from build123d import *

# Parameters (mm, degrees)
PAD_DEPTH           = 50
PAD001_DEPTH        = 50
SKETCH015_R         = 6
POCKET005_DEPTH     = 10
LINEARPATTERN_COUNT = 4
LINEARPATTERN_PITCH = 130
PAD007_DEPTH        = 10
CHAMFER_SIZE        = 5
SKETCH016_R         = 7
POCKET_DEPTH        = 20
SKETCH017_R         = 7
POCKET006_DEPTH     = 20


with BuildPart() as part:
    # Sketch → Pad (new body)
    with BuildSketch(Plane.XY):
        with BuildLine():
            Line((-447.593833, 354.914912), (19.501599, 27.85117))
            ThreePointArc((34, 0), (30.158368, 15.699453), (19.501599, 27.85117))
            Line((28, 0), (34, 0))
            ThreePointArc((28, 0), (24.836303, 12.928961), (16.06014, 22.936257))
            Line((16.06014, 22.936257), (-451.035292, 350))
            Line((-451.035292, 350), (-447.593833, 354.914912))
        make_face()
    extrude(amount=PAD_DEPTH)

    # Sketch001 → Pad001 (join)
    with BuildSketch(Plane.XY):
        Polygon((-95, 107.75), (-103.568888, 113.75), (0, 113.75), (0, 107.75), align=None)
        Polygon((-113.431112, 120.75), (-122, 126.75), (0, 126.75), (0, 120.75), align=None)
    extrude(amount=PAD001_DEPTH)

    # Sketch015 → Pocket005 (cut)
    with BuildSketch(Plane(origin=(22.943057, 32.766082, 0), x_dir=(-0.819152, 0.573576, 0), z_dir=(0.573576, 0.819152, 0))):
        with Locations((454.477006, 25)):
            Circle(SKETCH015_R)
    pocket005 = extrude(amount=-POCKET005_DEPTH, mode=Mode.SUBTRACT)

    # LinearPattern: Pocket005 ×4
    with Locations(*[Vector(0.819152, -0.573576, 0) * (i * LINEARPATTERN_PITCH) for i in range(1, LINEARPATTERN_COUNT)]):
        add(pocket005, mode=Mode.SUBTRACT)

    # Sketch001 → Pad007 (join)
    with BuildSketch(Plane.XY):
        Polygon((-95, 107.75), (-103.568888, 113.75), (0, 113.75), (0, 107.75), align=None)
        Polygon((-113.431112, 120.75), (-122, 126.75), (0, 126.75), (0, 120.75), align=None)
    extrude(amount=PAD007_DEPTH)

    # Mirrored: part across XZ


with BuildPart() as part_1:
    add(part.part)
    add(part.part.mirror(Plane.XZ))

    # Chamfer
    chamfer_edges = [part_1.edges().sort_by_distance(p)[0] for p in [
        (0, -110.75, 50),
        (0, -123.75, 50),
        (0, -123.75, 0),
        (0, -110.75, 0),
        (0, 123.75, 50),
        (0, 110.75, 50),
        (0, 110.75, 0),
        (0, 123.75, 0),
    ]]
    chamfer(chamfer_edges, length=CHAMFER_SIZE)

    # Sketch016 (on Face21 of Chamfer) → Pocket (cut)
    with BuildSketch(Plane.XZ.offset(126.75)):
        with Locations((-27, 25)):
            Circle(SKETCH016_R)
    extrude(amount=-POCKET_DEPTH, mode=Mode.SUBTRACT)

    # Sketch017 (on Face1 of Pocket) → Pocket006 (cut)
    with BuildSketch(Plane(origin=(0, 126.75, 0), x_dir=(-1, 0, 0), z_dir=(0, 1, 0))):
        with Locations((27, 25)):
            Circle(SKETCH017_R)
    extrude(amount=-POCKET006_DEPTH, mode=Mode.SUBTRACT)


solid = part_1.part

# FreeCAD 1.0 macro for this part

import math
import FreeCAD as App
import Part
import Sketcher
Q = App.Units.Quantity


def edges_at(feature, points):
    """Names of the edges that pass closest to the given points."""
    edges = feature.Shape.Edges
    near = lambda p: min(range(len(edges)), key=lambda i: edges[i].distToShape(Part.Vertex(*p))[0])
    return sorted({f"Edge{near(p) + 1}" for p in points})

doc = App.newDocument("Part")
body = doc.addObject("PartDesign::Body", "Body")

# Sketch on XY plane
sketch1 = body.newObject("Sketcher::SketchObject", "Sketch")
sketch1.AttachmentSupport = (doc.getObject("XY_Plane"), [""])
sketch1.MapMode = "FlatFace"
sketch1.addGeometry([
    Part.LineSegment(App.Vector(20, 28, 0), App.Vector(-448, 355, 0)),  # 0
    Part.LineSegment(App.Vector(-448, 355, 0), App.Vector(-451, 350, 0)),  # 1
    Part.LineSegment(App.Vector(-451, 350, 0), App.Vector(16, 23, 0)),  # 2
    Part.ArcOfCircle(Part.Circle(App.Vector(0, 0, 0), App.Vector(0, 0, 1), 28), math.radians(0), math.radians(55)),  # 3
    Part.LineSegment(App.Vector(28, 0, 0), App.Vector(34, 0, 0)),  # 4
    Part.ArcOfCircle(Part.Circle(App.Vector(0, 0, 0), App.Vector(0, 0, 1), 34), math.radians(0), math.radians(55)),  # 5
], False)
sketch1.addConstraint([
    Sketcher.Constraint("Coincident", 0, 2, 1, 1),
    Sketcher.Constraint("Coincident", 1, 2, 2, 1),
    Sketcher.Constraint("Tangent", 2, 2, 3, 2),
    Sketcher.Constraint("Coincident", 3, 1, 4, 1),
    Sketcher.Constraint("Coincident", 4, 2, 5, 1),
    Sketcher.Constraint("Tangent", 5, 2, 0, 1),
    Sketcher.Constraint("Horizontal", 4),
    Sketcher.Constraint("Coincident", 3, 3, -1, 1),
    Sketcher.Constraint("Coincident", 5, 3, -1, 1),
    Sketcher.Constraint("PointOnObject", 3, 1, -1),
    Sketcher.Constraint("Perpendicular", 0, 1),
    Sketcher.Constraint("Perpendicular", 1, 2),
    Sketcher.Constraint("Radius", 3, 28.000001),
    Sketcher.Constraint("DistanceX", 4, 1, 4, 2, 6.0),
    Sketcher.Constraint("Angle", 0, Q("145 deg")),
    Sketcher.Constraint("DistanceY", -1, 1, 1, 2, 350.0),
])
pad1 = body.newObject("PartDesign::Pad", "Pad")
pad1.Profile = sketch1
pad1.Length = 50

# Sketch on XY plane
sketch2 = body.newObject("Sketcher::SketchObject", "Sketch001")
sketch2.AttachmentSupport = (doc.getObject("XY_Plane"), [""])
sketch2.MapMode = "FlatFace"
sketch2.addGeometry([
    Part.LineSegment(App.Vector(-104, 114, 0), App.Vector(-95, 108, 0)),  # 0
    Part.LineSegment(App.Vector(-95, 108, 0), App.Vector(0, 108, 0)),  # 1
    Part.LineSegment(App.Vector(0, 108, 0), App.Vector(0, 114, 0)),  # 2
    Part.LineSegment(App.Vector(0, 114, 0), App.Vector(-104, 114, 0)),  # 3
    Part.LineSegment(App.Vector(-122, 127, 0), App.Vector(-113, 121, 0)),  # 4
    Part.LineSegment(App.Vector(-113, 121, 0), App.Vector(0, 121, 0)),  # 5
    Part.LineSegment(App.Vector(0, 121, 0), App.Vector(0, 127, 0)),  # 6
    Part.LineSegment(App.Vector(0, 127, 0), App.Vector(-122, 127, 0)),  # 7
], False)
sketch2.addConstraint([
    Sketcher.Constraint("Coincident", 0, 2, 1, 1),
    Sketcher.Constraint("Coincident", 1, 2, 2, 1),
    Sketcher.Constraint("Coincident", 2, 2, 3, 1),
    Sketcher.Constraint("Coincident", 3, 2, 0, 1),
    Sketcher.Constraint("Coincident", 4, 2, 5, 1),
    Sketcher.Constraint("Coincident", 5, 2, 6, 1),
    Sketcher.Constraint("Coincident", 6, 2, 7, 1),
    Sketcher.Constraint("Coincident", 7, 2, 4, 1),
    Sketcher.Constraint("Horizontal", 1),
    Sketcher.Constraint("Vertical", 2),
    Sketcher.Constraint("Horizontal", 3),
    Sketcher.Constraint("Horizontal", 5),
    Sketcher.Constraint("Vertical", 6),
    Sketcher.Constraint("Horizontal", 7),
    Sketcher.Constraint("PointOnObject", 1, 2, -2),
    Sketcher.Constraint("PointOnObject", 5, 2, -2),
    Sketcher.Constraint("Parallel", 0, 4),
    Sketcher.Constraint("Equal", 2, 6),
    Sketcher.Constraint("DistanceX", 1, 1, 1, 2, 95.0),
    Sketcher.Constraint("DistanceX", 7, 2, 7, 1, 122.0),
    Sketcher.Constraint("DistanceY", 2, 1, 2, 2, 6.0),
    Sketcher.Constraint("Angle", 0, Q("-35 deg")),
    Sketcher.Constraint("DistanceY", 3, 2, 4, 2, 7.0),
    Sketcher.Constraint("DistanceY", -1, 1, 0, 2, 107.75),
])
pad2 = body.newObject("PartDesign::Pad", "Pad001")
pad2.Profile = sketch2
pad2.Length = 50

# Sketch on an angled plane
sketch3 = body.newObject("Sketcher::SketchObject", "Sketch002")
sketch3.Placement = App.Placement(App.Vector(22.943057, 32.766082, 0), App.Rotation(App.Vector(-0.819152235, 0.573576164, 0), App.Vector(0, 0, 1), App.Vector(0.573576164, 0.819152235, 0), "ZXY"))
sketch3.addGeometry(Part.Circle(App.Vector(454, 25, 0), App.Vector(0, 0, 1), 6), False)
sketch3.addConstraint([
    Sketcher.Constraint("Diameter", 0, 12.0),
    Sketcher.Constraint("DistanceY", -1, 1, 0, 3, 25.0),
    Sketcher.Constraint("DistanceX", -1, 1, 0, 3, 454.477006),
])
pocket1 = body.newObject("PartDesign::Pocket", "Pocket")
pocket1.Profile = sketch3
pocket1.Length = 10
doc.recompute()

datumline = body.newObject("PartDesign::Line", "DatumLine")
datumline.Placement = App.Placement(App.Vector(0, 0, 0), App.Rotation(App.Vector(0, 0, 1), App.Vector(0.819152235, -0.573576164, 0)))
linearpattern = body.newObject("PartDesign::LinearPattern", "LinearPattern")
linearpattern.Originals = [pocket1]
linearpattern.Direction = (datumline, [""])
linearpattern.Mode = "offset"
linearpattern.Offset = 129.999963
linearpattern.Occurrences = 4
body.Tip = linearpattern

# Sketch on XY plane
sketch4 = body.newObject("Sketcher::SketchObject", "Sketch003")
sketch4.AttachmentSupport = (doc.getObject("XY_Plane"), [""])
sketch4.MapMode = "FlatFace"
sketch4.addGeometry([
    Part.LineSegment(App.Vector(-104, 114, 0), App.Vector(-95, 108, 0)),  # 0
    Part.LineSegment(App.Vector(-95, 108, 0), App.Vector(0, 108, 0)),  # 1
    Part.LineSegment(App.Vector(0, 108, 0), App.Vector(0, 114, 0)),  # 2
    Part.LineSegment(App.Vector(0, 114, 0), App.Vector(-104, 114, 0)),  # 3
    Part.LineSegment(App.Vector(-122, 127, 0), App.Vector(-113, 121, 0)),  # 4
    Part.LineSegment(App.Vector(-113, 121, 0), App.Vector(0, 121, 0)),  # 5
    Part.LineSegment(App.Vector(0, 121, 0), App.Vector(0, 127, 0)),  # 6
    Part.LineSegment(App.Vector(0, 127, 0), App.Vector(-122, 127, 0)),  # 7
], False)
sketch4.addConstraint([
    Sketcher.Constraint("Coincident", 0, 2, 1, 1),
    Sketcher.Constraint("Coincident", 1, 2, 2, 1),
    Sketcher.Constraint("Coincident", 2, 2, 3, 1),
    Sketcher.Constraint("Coincident", 3, 2, 0, 1),
    Sketcher.Constraint("Coincident", 4, 2, 5, 1),
    Sketcher.Constraint("Coincident", 5, 2, 6, 1),
    Sketcher.Constraint("Coincident", 6, 2, 7, 1),
    Sketcher.Constraint("Coincident", 7, 2, 4, 1),
    Sketcher.Constraint("Horizontal", 1),
    Sketcher.Constraint("Vertical", 2),
    Sketcher.Constraint("Horizontal", 3),
    Sketcher.Constraint("Horizontal", 5),
    Sketcher.Constraint("Vertical", 6),
    Sketcher.Constraint("Horizontal", 7),
    Sketcher.Constraint("PointOnObject", 1, 2, -2),
    Sketcher.Constraint("PointOnObject", 5, 2, -2),
    Sketcher.Constraint("Parallel", 0, 4),
    Sketcher.Constraint("Equal", 2, 6),
    Sketcher.Constraint("DistanceX", 1, 1, 1, 2, 95.0),
    Sketcher.Constraint("DistanceX", 7, 2, 7, 1, 122.0),
    Sketcher.Constraint("DistanceY", 2, 1, 2, 2, 6.0),
    Sketcher.Constraint("Angle", 0, Q("-35 deg")),
    Sketcher.Constraint("DistanceY", 3, 2, 4, 2, 7.0),
    Sketcher.Constraint("DistanceY", -1, 1, 0, 2, 107.75),
])
pad3 = body.newObject("PartDesign::Pad", "Pad002")
pad3.Profile = sketch4
pad3.Length = 10
body2 = doc.addObject("PartDesign::Body", "Body001")
doc.recompute()

body2.BaseFeature = body
doc.recompute()

mirroring = doc.addObject("Part::Mirroring", "Mirroring")
mirroring.Source = body
mirroring.Base = App.Vector(0, 0, 0)
mirroring.Normal = App.Vector(0, -1, 0)
body3 = doc.addObject("PartDesign::Body", "Body002")
body3.BaseFeature = mirroring
boolean = body2.newObject("PartDesign::Boolean", "Boolean")
boolean.Type = "Fuse"
boolean.addObjects([body3])
doc.recompute()

chamfer = body2.newObject("PartDesign::Chamfer", "Chamfer")
chamfer.Base = (boolean, edges_at(boolean, [
    (0, -110.75, 50),
    (0, -123.75, 50),
    (0, -123.75, 0),
    (0, -110.75, 0),
    (0, 123.75, 50),
    (0, 110.75, 50),
    (0, 110.75, 0),
    (0, 123.75, 0),
]))
chamfer.Size = 5

# Sketch on XZ plane
sketch5 = body2.newObject("Sketcher::SketchObject", "Sketch004")
sketch5.AttachmentSupport = (doc.getObject("XZ_Plane001"), [""])
sketch5.MapMode = "FlatFace"
sketch5.AttachmentOffset = App.Placement(App.Vector(0, 0, 126.75), App.Rotation())
sketch5.addGeometry(Part.Circle(App.Vector(-27, 25, 0), App.Vector(0, 0, 1), 7), False)
sketch5.addConstraint([
    Sketcher.Constraint("Diameter", 0, 14.0),
    Sketcher.Constraint("DistanceX", 0, 3, -1, 1, 27.0),
    Sketcher.Constraint("DistanceY", -1, 1, 0, 3, 25.0),
])
pocket2 = body2.newObject("PartDesign::Pocket", "Pocket001")
pocket2.Profile = sketch5
pocket2.Length = 20

# Sketch on XZ plane
sketch6 = body2.newObject("Sketcher::SketchObject", "Sketch005")
sketch6.AttachmentSupport = (doc.getObject("XZ_Plane001"), [""])
sketch6.MapMode = "FlatFace"
sketch6.AttachmentOffset = App.Placement(App.Vector(0, 0, -126.75), App.Rotation())
sketch6.addGeometry(Part.Circle(App.Vector(-27, 25, 0), App.Vector(0, 0, 1), 7), False)
sketch6.addConstraint([
    Sketcher.Constraint("Diameter", 0, 14.0),
    Sketcher.Constraint("DistanceX", 0, 3, -1, 1, 27.0),
    Sketcher.Constraint("DistanceY", -1, 1, 0, 3, 25.0),
])
pocket3 = body2.newObject("PartDesign::Pocket", "Pocket002")
pocket3.Profile = sketch6
pocket3.Length = 20
pocket3.Reversed = True
mirroring.Visibility = False

doc.recompute()
